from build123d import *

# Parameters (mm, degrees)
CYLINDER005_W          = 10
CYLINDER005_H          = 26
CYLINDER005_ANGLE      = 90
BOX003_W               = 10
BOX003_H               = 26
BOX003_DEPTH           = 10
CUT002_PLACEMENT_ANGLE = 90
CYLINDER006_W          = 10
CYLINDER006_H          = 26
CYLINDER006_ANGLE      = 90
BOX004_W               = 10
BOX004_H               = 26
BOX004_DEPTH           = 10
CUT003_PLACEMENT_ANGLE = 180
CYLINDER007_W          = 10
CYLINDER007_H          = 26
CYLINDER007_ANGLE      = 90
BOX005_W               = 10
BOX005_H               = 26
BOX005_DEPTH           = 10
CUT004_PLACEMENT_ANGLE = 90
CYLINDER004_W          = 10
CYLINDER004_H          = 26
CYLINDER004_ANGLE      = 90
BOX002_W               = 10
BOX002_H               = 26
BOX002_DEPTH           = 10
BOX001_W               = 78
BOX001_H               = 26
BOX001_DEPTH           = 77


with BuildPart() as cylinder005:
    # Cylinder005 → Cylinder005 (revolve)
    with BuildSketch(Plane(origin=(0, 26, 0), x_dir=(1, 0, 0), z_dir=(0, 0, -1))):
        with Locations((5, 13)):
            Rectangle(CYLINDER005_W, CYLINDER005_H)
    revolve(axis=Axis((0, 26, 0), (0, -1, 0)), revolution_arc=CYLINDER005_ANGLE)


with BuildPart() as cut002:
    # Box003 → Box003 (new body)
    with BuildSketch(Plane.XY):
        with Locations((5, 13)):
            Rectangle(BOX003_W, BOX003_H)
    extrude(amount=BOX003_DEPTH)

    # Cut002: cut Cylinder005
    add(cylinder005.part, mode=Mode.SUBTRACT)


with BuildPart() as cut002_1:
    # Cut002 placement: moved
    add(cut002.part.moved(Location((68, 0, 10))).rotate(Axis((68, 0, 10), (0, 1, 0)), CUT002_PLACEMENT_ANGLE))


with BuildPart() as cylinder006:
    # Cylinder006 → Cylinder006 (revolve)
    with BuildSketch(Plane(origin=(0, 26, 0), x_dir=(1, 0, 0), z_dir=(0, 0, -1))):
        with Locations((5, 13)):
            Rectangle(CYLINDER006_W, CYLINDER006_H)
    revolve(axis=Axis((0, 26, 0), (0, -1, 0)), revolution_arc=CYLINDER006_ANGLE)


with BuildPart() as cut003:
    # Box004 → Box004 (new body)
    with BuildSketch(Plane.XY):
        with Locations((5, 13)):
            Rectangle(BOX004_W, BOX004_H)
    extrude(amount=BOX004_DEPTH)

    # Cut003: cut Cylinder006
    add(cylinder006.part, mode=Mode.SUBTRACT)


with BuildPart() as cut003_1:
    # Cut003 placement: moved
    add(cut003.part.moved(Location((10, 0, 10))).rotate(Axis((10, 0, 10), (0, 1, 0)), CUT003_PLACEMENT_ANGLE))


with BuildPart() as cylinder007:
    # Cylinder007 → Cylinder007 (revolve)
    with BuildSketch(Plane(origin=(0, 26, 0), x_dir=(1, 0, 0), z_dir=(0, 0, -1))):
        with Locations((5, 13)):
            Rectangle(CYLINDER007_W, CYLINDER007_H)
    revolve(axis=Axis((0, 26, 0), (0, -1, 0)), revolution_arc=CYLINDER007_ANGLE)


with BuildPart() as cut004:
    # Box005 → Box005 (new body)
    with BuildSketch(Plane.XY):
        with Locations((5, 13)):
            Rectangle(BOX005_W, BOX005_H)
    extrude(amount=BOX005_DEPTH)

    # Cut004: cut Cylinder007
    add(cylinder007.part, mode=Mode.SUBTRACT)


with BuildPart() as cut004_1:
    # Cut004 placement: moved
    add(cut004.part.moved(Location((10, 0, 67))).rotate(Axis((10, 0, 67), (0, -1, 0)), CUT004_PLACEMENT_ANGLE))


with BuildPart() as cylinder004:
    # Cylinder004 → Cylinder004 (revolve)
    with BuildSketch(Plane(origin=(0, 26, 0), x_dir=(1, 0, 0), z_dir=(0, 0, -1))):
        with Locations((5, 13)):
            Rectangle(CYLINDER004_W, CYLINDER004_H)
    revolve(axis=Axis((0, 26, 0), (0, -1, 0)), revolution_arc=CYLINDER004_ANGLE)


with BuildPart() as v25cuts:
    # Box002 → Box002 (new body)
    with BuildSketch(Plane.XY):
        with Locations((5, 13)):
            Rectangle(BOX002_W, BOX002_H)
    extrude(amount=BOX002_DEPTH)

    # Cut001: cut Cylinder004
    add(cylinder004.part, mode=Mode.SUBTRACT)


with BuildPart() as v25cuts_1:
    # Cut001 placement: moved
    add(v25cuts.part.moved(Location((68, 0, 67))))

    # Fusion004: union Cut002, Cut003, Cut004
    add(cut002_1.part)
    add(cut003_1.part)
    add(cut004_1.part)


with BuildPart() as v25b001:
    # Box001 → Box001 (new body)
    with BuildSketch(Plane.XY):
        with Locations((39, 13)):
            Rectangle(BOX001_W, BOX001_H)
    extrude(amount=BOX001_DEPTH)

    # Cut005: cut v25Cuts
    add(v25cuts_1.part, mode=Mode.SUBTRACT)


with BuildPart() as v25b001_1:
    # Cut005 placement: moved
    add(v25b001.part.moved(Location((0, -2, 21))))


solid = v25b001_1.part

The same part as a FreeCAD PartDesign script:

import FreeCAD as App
import Part
import Sketcher

V = App.Vector
Q = App.Units.Quantity


def add_polygon(sketch, points):
    """Adds a closed chain of lines whose ends are joined by coincident constraints."""
    first, n = sketch.GeometryCount, len(points)
    for a, b in zip(points, points[1:] + points[:1]):
        sketch.addGeometry(Part.LineSegment(App.Vector(*a, 0), App.Vector(*b, 0)), False)
    for i in range(n):
        sketch.addConstraint(Sketcher.Constraint("Coincident", first + i, 2, first + (i + 1) % n, 1))

doc = App.newDocument("Part")
body = doc.addObject("PartDesign::Body", "Body")

sketch1 = body.newObject("Sketcher::SketchObject", "Sketch")
sketch1.AttachmentSupport = (doc.getObject("XY_Plane"), [""])
sketch1.MapMode = "FlatFace"
add_polygon(sketch1, [(0, 0), (0, 26), (10, 26), (10, 0)])
sketch1.addConstraint([
    Sketcher.Constraint("Vertical", 0),
    Sketcher.Constraint("Horizontal", 1),
    Sketcher.Constraint("Vertical", 2),
    Sketcher.Constraint("Horizontal", 3),
    Sketcher.Constraint("Coincident", 3, 2, -1, 1),
    Sketcher.Constraint("DistanceX", 1, 1, 1, 2, Q("10 mm")),
    Sketcher.Constraint("DistanceY", 0, 1, 0, 2, Q("26 mm")),
])
revolution = body.newObject("PartDesign::Revolution", "Revolution")
revolution.Profile = sketch1
revolution.ReferenceAxis = (sketch1, ["V_Axis"])
revolution.Angle = 90
revolution.Reversed = True
body2 = doc.addObject("PartDesign::Body", "Body001")

sketch2 = body2.newObject("Sketcher::SketchObject", "Sketch001")
sketch2.AttachmentSupport = (doc.getObject("XY_Plane001"), [""])
sketch2.MapMode = "FlatFace"
add_polygon(sketch2, [(0, 26), (0, 0), (10, 0), (10, 26)])
sketch2.addConstraint([
    Sketcher.Constraint("Vertical", 0),
    Sketcher.Constraint("Horizontal", 1),
    Sketcher.Constraint("Vertical", 2),
    Sketcher.Constraint("Horizontal", 3),
    Sketcher.Constraint("Coincident", 0, 2, -1, 1),
    Sketcher.Constraint("DistanceX", 1, 1, 1, 2, Q("10 mm")),
    Sketcher.Constraint("DistanceY", 0, 2, 0, 1, Q("26 mm")),
])
pad1 = body2.newObject("PartDesign::Pad", "Pad")
pad1.Profile = sketch2
pad1.Length = 10
doc.recompute()

boolean = body2.newObject("PartDesign::Boolean", "Boolean")
boolean.Type = "Cut"
boolean.addObjects([body])
body3 = doc.addObject("PartDesign::Body", "Body002")
doc.recompute()

body2.Placement = App.Placement(V(68, 0, 10), App.Rotation(V(0, 1, 0), 90))
boolean2 = body3.newObject("PartDesign::Boolean", "Boolean001")
boolean2.Type = "Fuse"
boolean2.addObjects([body2])
body4 = doc.addObject("PartDesign::Body", "Body003")

sketch3 = body4.newObject("Sketcher::SketchObject", "Sketch002")
sketch3.AttachmentSupport = (doc.getObject("XY_Plane003"), [""])
sketch3.MapMode = "FlatFace"
add_polygon(sketch3, [(0, 0), (0, 26), (10, 26), (10, 0)])
sketch3.addConstraint([
    Sketcher.Constraint("Vertical", 0),
    Sketcher.Constraint("Horizontal", 1),
    Sketcher.Constraint("Vertical", 2),
    Sketcher.Constraint("Horizontal", 3),
    Sketcher.Constraint("Coincident", 3, 2, -1, 1),
    Sketcher.Constraint("DistanceX", 1, 1, 1, 2, Q("10 mm")),
    Sketcher.Constraint("DistanceY", 0, 1, 0, 2, Q("26 mm")),
])
revolution2 = body4.newObject("PartDesign::Revolution", "Revolution001")
revolution2.Profile = sketch3
revolution2.ReferenceAxis = (sketch3, ["V_Axis"])
revolution2.Angle = 90
revolution2.Reversed = True
body5 = doc.addObject("PartDesign::Body", "Body004")

sketch4 = body5.newObject("Sketcher::SketchObject", "Sketch003")
sketch4.AttachmentSupport = (doc.getObject("XY_Plane004"), [""])
sketch4.MapMode = "FlatFace"
add_polygon(sketch4, [(0, 26), (0, 0), (10, 0), (10, 26)])
sketch4.addConstraint([
    Sketcher.Constraint("Vertical", 0),
    Sketcher.Constraint("Horizontal", 1),
    Sketcher.Constraint("Vertical", 2),
    Sketcher.Constraint("Horizontal", 3),
    Sketcher.Constraint("Coincident", 0, 2, -1, 1),
    Sketcher.Constraint("DistanceX", 1, 1, 1, 2, Q("10 mm")),
    Sketcher.Constraint("DistanceY", 0, 2, 0, 1, Q("26 mm")),
])
pad2 = body5.newObject("PartDesign::Pad", "Pad001")
pad2.Profile = sketch4
pad2.Length = 10
doc.recompute()

boolean3 = body5.newObject("PartDesign::Boolean", "Boolean002")
boolean3.Type = "Cut"
boolean3.addObjects([body4])
body6 = doc.addObject("PartDesign::Body", "Body005")
doc.recompute()

body5.Placement = App.Placement(V(10, 0, 10), App.Rotation(V(0, 1, 0), 180))
boolean4 = body6.newObject("PartDesign::Boolean", "Boolean003")
boolean4.Type = "Fuse"
boolean4.addObjects([body5])
body7 = doc.addObject("PartDesign::Body", "Body006")

sketch5 = body7.newObject("Sketcher::SketchObject", "Sketch004")
sketch5.AttachmentSupport = (doc.getObject("XY_Plane006"), [""])
sketch5.MapMode = "FlatFace"
add_polygon(sketch5, [(0, 0), (0, 26), (10, 26), (10, 0)])
sketch5.addConstraint([
    Sketcher.Constraint("Vertical", 0),
    Sketcher.Constraint("Horizontal", 1),
    Sketcher.Constraint("Vertical", 2),
    Sketcher.Constraint("Horizontal", 3),
    Sketcher.Constraint("Coincident", 3, 2, -1, 1),
    Sketcher.Constraint("DistanceX", 1, 1, 1, 2, Q("10 mm")),
    Sketcher.Constraint("DistanceY", 0, 1, 0, 2, Q("26 mm")),
])
revolution3 = body7.newObject("PartDesign::Revolution", "Revolution002")
revolution3.Profile = sketch5
revolution3.ReferenceAxis = (sketch5, ["V_Axis"])
revolution3.Angle = 90
revolution3.Reversed = True
body8 = doc.addObject("PartDesign::Body", "Body007")

sketch6 = body8.newObject("Sketcher::SketchObject", "Sketch005")
sketch6.AttachmentSupport = (doc.getObject("XY_Plane007"), [""])
sketch6.MapMode = "FlatFace"
add_polygon(sketch6, [(0, 26), (0, 0), (10, 0), (10, 26)])
sketch6.addConstraint([
    Sketcher.Constraint("Vertical", 0),
    Sketcher.Constraint("Horizontal", 1),
    Sketcher.Constraint("Vertical", 2),
    Sketcher.Constraint("Horizontal", 3),
    Sketcher.Constraint("Coincident", 0, 2, -1, 1),
    Sketcher.Constraint("DistanceX", 1, 1, 1, 2, Q("10 mm")),
    Sketcher.Constraint("DistanceY", 0, 2, 0, 1, Q("26 mm")),
])
pad3 = body8.newObject("PartDesign::Pad", "Pad002")
pad3.Profile = sketch6
pad3.Length = 10
doc.recompute()

boolean5 = body8.newObject("PartDesign::Boolean", "Boolean004")
boolean5.Type = "Cut"
boolean5.addObjects([body7])
body9 = doc.addObject("PartDesign::Body", "Body008")
doc.recompute()

body8.Placement = App.Placement(V(10, 0, 67), App.Rotation(V(0, -1, 0), 90))
boolean6 = body9.newObject("PartDesign::Boolean", "Boolean005")
boolean6.Type = "Fuse"
boolean6.addObjects([body8])
body10 = doc.addObject("PartDesign::Body", "Body009")

sketch7 = body10.newObject("Sketcher::SketchObject", "Sketch006")
sketch7.AttachmentSupport = (doc.getObject("XY_Plane009"), [""])
sketch7.MapMode = "FlatFace"
add_polygon(sketch7, [(0, 0), (0, 26), (10, 26), (10, 0)])
sketch7.addConstraint([
    Sketcher.Constraint("Vertical", 0),
    Sketcher.Constraint("Horizontal", 1),
    Sketcher.Constraint("Vertical", 2),
    Sketcher.Constraint("Horizontal", 3),
    Sketcher.Constraint("Coincident", 3, 2, -1, 1),
    Sketcher.Constraint("DistanceX", 1, 1, 1, 2, Q("10 mm")),
    Sketcher.Constraint("DistanceY", 0, 1, 0, 2, Q("26 mm")),
])
revolution4 = body10.newObject("PartDesign::Revolution", "Revolution003")
revolution4.Profile = sketch7
revolution4.ReferenceAxis = (sketch7, ["V_Axis"])
revolution4.Angle = 90
revolution4.Reversed = True
body11 = doc.addObject("PartDesign::Body", "Body010")

sketch8 = body11.newObject("Sketcher::SketchObject", "Sketch007")
sketch8.AttachmentSupport = (doc.getObject("XY_Plane010"), [""])
sketch8.MapMode = "FlatFace"
add_polygon(sketch8, [(0, 26), (0, 0), (10, 0), (10, 26)])
sketch8.addConstraint([
    Sketcher.Constraint("Vertical", 0),
    Sketcher.Constraint("Horizontal", 1),
    Sketcher.Constraint("Vertical", 2),
    Sketcher.Constraint("Horizontal", 3),
    Sketcher.Constraint("Coincident", 0, 2, -1, 1),
    Sketcher.Constraint("DistanceX", 1, 1, 1, 2, Q("10 mm")),
    Sketcher.Constraint("DistanceY", 0, 2, 0, 1, Q("26 mm")),
])
pad4 = body11.newObject("PartDesign::Pad", "Pad003")
pad4.Profile = sketch8
pad4.Length = 10
doc.recompute()

boolean7 = body11.newObject("PartDesign::Boolean", "Boolean006")
boolean7.Type = "Cut"
boolean7.addObjects([body10])
body12 = doc.addObject("PartDesign::Body", "Body011")
body12.AllowCompound = True
doc.recompute()

body11.Placement = App.Placement(V(68, 0, 67), App.Rotation(V(0, 0, 1), 0))
boolean8 = body12.newObject("PartDesign::Boolean", "Boolean007")
boolean8.Type = "Fuse"
boolean8.addObjects([body11])
doc.recompute()

boolean9 = body12.newObject("PartDesign::Boolean", "Boolean008")
boolean9.Type = "Fuse"
boolean9.addObjects([body3])
doc.recompute()

boolean10 = body12.newObject("PartDesign::Boolean", "Boolean009")
boolean10.Type = "Fuse"
boolean10.addObjects([body6])
doc.recompute()

boolean11 = body12.newObject("PartDesign::Boolean", "Boolean010")
boolean11.Type = "Fuse"
boolean11.addObjects([body9])
body13 = doc.addObject("PartDesign::Body", "Body012")

sketch9 = body13.newObject("Sketcher::SketchObject", "Sketch008")
sketch9.AttachmentSupport = (doc.getObject("XY_Plane012"), [""])
sketch9.MapMode = "FlatFace"
add_polygon(sketch9, [(0, 26), (0, 0), (78, 0), (78, 26)])
sketch9.addConstraint([
    Sketcher.Constraint("Vertical", 0),
    Sketcher.Constraint("Horizontal", 1),
    Sketcher.Constraint("Vertical", 2),
    Sketcher.Constraint("Horizontal", 3),
    Sketcher.Constraint("Coincident", 0, 2, -1, 1),
    Sketcher.Constraint("DistanceX", 1, 1, 1, 2, Q("78 mm")),
    Sketcher.Constraint("DistanceY", 0, 2, 0, 1, Q("26 mm")),
])
pad5 = body13.newObject("PartDesign::Pad", "Pad004")
pad5.Profile = sketch9
pad5.Length = 77
doc.recompute()

boolean12 = body13.newObject("PartDesign::Boolean", "Boolean011")
boolean12.Type = "Cut"
boolean12.addObjects([body12])
body14 = doc.addObject("PartDesign::Body", "Body013")
doc.recompute()

body13.Placement = App.Placement(V(0, -2, 21), App.Rotation(V(0, 0, 1), 0))
boolean13 = body14.newObject("PartDesign::Boolean", "Boolean012")
boolean13.Type = "Fuse"
boolean13.addObjects([body13])

doc.recompute()
